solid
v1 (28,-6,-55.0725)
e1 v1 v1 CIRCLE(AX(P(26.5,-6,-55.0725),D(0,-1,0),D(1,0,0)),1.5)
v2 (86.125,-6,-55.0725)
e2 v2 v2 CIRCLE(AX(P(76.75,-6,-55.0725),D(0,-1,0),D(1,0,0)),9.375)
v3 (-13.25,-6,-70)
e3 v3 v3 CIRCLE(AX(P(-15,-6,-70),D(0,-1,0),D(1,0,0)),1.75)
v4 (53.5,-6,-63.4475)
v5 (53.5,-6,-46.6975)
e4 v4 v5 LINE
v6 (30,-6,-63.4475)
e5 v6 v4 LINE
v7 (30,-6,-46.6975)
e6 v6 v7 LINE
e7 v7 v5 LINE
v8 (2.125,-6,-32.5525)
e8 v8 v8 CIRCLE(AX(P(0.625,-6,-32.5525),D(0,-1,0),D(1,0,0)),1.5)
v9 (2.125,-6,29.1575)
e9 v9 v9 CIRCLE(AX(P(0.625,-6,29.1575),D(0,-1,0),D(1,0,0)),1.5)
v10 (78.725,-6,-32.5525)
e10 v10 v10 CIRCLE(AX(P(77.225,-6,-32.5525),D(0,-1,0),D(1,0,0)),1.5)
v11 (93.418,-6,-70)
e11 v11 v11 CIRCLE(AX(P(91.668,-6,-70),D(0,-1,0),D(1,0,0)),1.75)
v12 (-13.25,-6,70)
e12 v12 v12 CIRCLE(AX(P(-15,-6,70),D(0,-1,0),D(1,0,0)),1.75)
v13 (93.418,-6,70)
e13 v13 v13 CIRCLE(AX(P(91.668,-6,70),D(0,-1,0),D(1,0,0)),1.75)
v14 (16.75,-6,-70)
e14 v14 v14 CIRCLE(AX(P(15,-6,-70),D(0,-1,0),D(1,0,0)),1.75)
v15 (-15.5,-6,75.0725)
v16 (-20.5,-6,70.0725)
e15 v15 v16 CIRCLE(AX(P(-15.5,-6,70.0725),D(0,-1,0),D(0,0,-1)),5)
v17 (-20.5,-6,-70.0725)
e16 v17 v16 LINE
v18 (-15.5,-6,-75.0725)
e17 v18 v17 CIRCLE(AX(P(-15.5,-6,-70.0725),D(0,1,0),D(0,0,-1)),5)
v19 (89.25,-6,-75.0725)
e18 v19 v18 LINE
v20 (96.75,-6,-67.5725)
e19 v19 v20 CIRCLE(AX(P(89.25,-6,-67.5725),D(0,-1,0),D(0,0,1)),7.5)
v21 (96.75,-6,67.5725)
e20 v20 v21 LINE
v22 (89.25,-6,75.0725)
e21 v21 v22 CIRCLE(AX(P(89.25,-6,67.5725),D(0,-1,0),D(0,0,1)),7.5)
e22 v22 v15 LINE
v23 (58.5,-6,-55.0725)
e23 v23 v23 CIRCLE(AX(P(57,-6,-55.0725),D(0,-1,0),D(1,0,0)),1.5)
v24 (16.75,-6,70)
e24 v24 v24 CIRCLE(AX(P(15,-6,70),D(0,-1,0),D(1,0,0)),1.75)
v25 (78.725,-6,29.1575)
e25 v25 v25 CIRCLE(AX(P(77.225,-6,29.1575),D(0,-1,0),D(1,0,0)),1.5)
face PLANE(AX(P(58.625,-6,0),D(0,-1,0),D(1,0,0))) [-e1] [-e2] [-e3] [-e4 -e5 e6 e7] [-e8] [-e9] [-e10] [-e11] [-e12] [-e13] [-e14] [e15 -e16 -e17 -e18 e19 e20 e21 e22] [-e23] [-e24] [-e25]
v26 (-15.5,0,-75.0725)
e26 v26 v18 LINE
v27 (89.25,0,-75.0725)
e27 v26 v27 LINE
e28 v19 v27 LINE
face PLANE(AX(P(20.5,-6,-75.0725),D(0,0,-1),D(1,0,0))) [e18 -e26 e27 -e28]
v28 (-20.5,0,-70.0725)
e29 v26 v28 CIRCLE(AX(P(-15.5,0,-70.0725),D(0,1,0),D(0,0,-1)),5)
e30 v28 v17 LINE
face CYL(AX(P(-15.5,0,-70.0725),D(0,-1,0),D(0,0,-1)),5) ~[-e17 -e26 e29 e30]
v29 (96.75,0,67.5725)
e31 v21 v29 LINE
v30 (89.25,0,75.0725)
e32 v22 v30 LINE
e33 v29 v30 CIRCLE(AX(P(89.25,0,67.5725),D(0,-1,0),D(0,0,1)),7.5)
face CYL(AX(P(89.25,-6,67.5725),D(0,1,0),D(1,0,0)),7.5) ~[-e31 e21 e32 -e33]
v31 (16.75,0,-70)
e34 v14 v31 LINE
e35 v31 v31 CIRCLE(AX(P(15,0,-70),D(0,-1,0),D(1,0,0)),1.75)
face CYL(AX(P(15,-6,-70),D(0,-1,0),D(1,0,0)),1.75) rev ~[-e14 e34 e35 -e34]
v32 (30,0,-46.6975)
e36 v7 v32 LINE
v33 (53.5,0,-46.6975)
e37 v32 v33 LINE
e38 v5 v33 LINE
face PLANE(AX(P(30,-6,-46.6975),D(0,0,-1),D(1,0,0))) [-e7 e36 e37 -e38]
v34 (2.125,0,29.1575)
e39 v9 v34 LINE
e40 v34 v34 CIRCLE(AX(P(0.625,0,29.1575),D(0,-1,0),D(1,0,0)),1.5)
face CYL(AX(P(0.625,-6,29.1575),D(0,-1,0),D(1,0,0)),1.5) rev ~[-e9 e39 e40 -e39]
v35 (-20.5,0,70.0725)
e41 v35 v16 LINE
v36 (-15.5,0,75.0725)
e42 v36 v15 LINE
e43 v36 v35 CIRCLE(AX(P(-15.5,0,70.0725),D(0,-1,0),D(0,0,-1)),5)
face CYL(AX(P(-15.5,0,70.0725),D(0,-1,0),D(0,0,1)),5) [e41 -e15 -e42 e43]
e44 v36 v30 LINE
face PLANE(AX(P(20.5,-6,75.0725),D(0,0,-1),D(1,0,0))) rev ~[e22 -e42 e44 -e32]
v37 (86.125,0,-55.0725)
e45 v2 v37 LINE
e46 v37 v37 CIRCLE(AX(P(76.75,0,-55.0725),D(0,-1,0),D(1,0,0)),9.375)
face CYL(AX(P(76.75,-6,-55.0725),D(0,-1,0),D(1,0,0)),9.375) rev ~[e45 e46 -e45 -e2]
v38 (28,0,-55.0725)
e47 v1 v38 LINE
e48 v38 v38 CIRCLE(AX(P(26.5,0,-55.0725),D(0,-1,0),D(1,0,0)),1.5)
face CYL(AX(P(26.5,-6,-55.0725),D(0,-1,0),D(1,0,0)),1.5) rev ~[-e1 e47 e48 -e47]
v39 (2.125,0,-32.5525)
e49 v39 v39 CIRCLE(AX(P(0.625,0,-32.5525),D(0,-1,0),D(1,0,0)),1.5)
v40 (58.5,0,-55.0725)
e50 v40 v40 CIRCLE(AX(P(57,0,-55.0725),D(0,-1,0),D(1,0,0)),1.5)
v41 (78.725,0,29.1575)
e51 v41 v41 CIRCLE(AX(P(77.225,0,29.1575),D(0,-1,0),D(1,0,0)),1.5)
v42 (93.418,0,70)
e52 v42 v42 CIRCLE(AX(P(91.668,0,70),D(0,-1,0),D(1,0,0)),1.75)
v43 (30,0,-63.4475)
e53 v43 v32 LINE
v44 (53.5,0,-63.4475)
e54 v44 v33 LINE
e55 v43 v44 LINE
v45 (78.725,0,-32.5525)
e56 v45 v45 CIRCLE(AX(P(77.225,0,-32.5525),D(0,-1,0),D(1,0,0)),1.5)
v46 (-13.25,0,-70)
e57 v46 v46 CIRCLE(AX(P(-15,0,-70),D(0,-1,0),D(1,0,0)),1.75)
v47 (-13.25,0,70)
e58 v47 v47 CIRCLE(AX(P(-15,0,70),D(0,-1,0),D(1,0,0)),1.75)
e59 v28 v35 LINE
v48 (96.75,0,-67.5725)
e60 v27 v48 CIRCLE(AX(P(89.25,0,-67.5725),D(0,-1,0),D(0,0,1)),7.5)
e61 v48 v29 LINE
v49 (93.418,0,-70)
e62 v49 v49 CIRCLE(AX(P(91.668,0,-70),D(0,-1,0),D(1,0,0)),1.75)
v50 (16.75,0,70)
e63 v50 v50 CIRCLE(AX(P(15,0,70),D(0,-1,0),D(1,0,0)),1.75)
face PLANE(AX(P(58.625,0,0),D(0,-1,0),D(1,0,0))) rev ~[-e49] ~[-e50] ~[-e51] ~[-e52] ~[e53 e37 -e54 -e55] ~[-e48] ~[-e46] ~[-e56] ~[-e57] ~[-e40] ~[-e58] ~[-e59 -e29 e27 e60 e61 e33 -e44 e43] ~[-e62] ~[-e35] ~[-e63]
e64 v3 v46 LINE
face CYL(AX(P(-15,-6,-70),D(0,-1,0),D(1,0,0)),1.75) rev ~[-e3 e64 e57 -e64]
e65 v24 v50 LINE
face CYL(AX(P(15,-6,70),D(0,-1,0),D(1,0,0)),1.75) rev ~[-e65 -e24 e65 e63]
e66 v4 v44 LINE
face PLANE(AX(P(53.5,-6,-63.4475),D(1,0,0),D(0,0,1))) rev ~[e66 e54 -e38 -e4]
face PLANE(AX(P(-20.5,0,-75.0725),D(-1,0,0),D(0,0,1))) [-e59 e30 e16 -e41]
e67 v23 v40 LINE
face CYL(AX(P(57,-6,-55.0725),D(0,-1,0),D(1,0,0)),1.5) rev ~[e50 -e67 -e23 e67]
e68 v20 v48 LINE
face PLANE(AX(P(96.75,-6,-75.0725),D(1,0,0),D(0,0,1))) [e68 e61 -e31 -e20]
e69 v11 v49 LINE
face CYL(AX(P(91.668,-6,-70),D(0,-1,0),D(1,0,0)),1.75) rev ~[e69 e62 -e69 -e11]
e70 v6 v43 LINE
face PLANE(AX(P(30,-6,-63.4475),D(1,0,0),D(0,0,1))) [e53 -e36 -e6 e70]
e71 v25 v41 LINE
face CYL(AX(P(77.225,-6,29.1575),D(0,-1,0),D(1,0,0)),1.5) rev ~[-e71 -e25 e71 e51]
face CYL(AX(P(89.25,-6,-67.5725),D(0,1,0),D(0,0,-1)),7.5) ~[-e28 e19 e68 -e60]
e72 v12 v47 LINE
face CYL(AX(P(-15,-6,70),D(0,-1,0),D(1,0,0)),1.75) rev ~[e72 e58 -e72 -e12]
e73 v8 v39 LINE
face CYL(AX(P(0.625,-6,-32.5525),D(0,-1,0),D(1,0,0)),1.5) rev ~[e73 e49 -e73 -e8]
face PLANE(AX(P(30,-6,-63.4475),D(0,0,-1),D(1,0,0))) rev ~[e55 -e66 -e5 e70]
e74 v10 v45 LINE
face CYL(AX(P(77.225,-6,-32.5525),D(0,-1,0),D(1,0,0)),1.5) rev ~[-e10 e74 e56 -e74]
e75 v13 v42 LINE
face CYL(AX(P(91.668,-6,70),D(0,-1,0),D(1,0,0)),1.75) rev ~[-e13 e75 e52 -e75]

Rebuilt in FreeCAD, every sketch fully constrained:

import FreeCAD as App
import Part
import Sketcher

V = App.Vector


def edges_at(feature, points):
    """Names of the edges that pass closest to the given points."""
    edges = feature.Shape.Edges
    near = lambda p: min(range(len(edges)), key=lambda i: edges[i].distToShape(Part.Vertex(*p))[0])
    return sorted({f"Edge{near(p) + 1}" for p in points})


def add_polygon(sketch, points):
    """Adds a closed chain of lines whose ends are joined by coincident constraints."""
    first, n = sketch.GeometryCount, len(points)
    for a, b in zip(points, points[1:] + points[:1]):
        sketch.addGeometry(Part.LineSegment(App.Vector(*a, 0), App.Vector(*b, 0)), False)
    for i in range(n):
        sketch.addConstraint(Sketcher.Constraint("Coincident", first + i, 2, first + (i + 1) % n, 1))

doc = App.newDocument("Part")
body = doc.addObject("PartDesign::Body", "Body")

# Sketch on XZ plane
sketch1 = doc.addObject("Sketcher::SketchObject", "Sketch")
body.addObject(sketch1)
sketch1.AttachmentSupport = (doc.XZ_Plane, [""])
sketch1.MapMode = "FlatFace"
add_polygon(sketch1, [(-20.5, 75.0725), (-20.5, -75.0725), (20.5, -75.0725), (20.5, 75.0725)])  # lines 0-3
sketch1.addConstraint(Sketcher.Constraint("Vertical", 0))
sketch1.addConstraint(Sketcher.Constraint("Horizontal", 1))
sketch1.addConstraint(Sketcher.Constraint("Vertical", 2))
sketch1.addConstraint(Sketcher.Constraint("Horizontal", 3))
sketch1.addConstraint(Sketcher.Constraint("Symmetric", 0, 2, 2, 2, -1, 1))
sketch1.addConstraint(Sketcher.Constraint("DistanceX", 1, 1, 1, 2, 41.0))
sketch1.addConstraint(Sketcher.Constraint("DistanceY", 0, 2, 0, 1, 150.145))
pad1 = doc.addObject("PartDesign::Pad", "Pad")
body.addObject(pad1)
pad1.Profile = sketch1
pad1.Length = 6

# Sketch on XZ plane
sketch2 = doc.addObject("Sketcher::SketchObject", "Sketch001")
body.addObject(sketch2)
sketch2.AttachmentSupport = (doc.XZ_Plane, [""])
sketch2.MapMode = "FlatFace"
sketch2.AttachmentOffset = App.Placement(V(0, 0, 6), App.Rotation())
sketch2.addGeometry(Part.Circle(V(-15, 70, 0), V(0, 0, 1), 1.75), False)
sketch2.addGeometry(Part.Circle(V(15, 70, 0), V(0, 0, 1), 1.75), False)
sketch2.addGeometry(Part.Circle(V(-15, -70, 0), V(0, 0, 1), 1.75), False)
sketch2.addGeometry(Part.Circle(V(15, -70, 0), V(0, 0, 1), 1.75), False)
sketch2.addConstraint(Sketcher.Constraint("Equal", 0, 1))
sketch2.addConstraint(Sketcher.Constraint("Equal", 1, 2))
sketch2.addConstraint(Sketcher.Constraint("Equal", 2, 3))
sketch2.addConstraint(Sketcher.Constraint("Symmetric", 1, 3, 2, 3, -1, 1))
sketch2.addConstraint(Sketcher.Constraint("Symmetric", 0, 3, 3, 3, -1, 1))
sketch2.addConstraint(Sketcher.Constraint("Symmetric", 0, 3, 1, 3, -2))
sketch2.addConstraint(Sketcher.Constraint("Diameter", 0, 3.5))
sketch2.addConstraint(Sketcher.Constraint("DistanceX", 0, 3, -1, 1, 15.0))
sketch2.addConstraint(Sketcher.Constraint("DistanceY", -1, 1, 0, 3, 70.0))
pocket1 = doc.addObject("PartDesign::Pocket", "Pocket")
body.addObject(pocket1)
pocket1.Profile = sketch2
pocket1.Type = "ThroughAll"

# Sketch on XZ plane
sketch3 = doc.addObject("Sketcher::SketchObject", "Sketch002")
body.addObject(sketch3)
sketch3.AttachmentSupport = (doc.XZ_Plane, [""])
sketch3.MapMode = "FlatFace"
sketch3.AttachmentOffset = App.Placement(V(0, 0, 6), App.Rotation())
add_polygon(sketch3, [(20.5, 75.0725), (20.5, -75.0725), (96.75, -75.0725), (96.75, 75.0725)])  # lines 0-3
sketch3.addConstraint(Sketcher.Constraint("Vertical", 0))
sketch3.addConstraint(Sketcher.Constraint("Horizontal", 1))
sketch3.addConstraint(Sketcher.Constraint("Vertical", 2))
sketch3.addConstraint(Sketcher.Constraint("Horizontal", 3))
sketch3.addConstraint(Sketcher.Constraint("DistanceX", 1, 1, 1, 2, 76.25))
sketch3.addConstraint(Sketcher.Constraint("DistanceX", -1, 1, 0, 2, 20.5))
sketch3.addConstraint(Sketcher.Constraint("DistanceY", 0, 2, 0, 1, 150.145))
sketch3.addConstraint(Sketcher.Constraint("DistanceY", 0, 2, -1, 1, 75.0725))
pad2 = doc.addObject("PartDesign::Pad", "Pad001")
body.addObject(pad2)
pad2.Profile = sketch3
pad2.Length = 6
pad2.Reversed = True
doc.recompute()

fillet = doc.addObject("PartDesign::Fillet", "Fillet")
body.addObject(fillet)
fillet.Base = (pad2, edges_at(pad2, [(-20.5, -3, 75.073), (-20.5, -3, -75.073)]))
fillet.Radius = 5
doc.recompute()

fillet2 = doc.addObject("PartDesign::Fillet", "Fillet001")
body.addObject(fillet2)
fillet2.Base = (fillet, edges_at(fillet, [(96.75, -3, 75.073), (96.75, -3, -75.073)]))
fillet2.Radius = 7.5

# Sketch on XZ plane
sketch4 = doc.addObject("Sketcher::SketchObject", "Sketch003")
body.addObject(sketch4)
sketch4.AttachmentSupport = (doc.XZ_Plane, [""])
sketch4.MapMode = "FlatFace"
sketch4.AttachmentOffset = App.Placement(V(0, 0, 6), App.Rotation())
sketch4.addGeometry(Part.Circle(V(91.668, 70, 0), V(0, 0, 1), 1.75), False)
sketch4.addGeometry(Part.Circle(V(91.668, -70, 0), V(0, 0, 1), 1.75), False)
sketch4.addConstraint(Sketcher.Constraint("Equal", 0, 1))
sketch4.addConstraint(Sketcher.Constraint("Symmetric", 0, 3, 1, 3, -1))
sketch4.addConstraint(Sketcher.Constraint("Diameter", 0, 3.5))
sketch4.addConstraint(Sketcher.Constraint("DistanceY", -1, 1, 0, 3, 70.0))
sketch4.addConstraint(Sketcher.Constraint("DistanceX", -1, 1, 0, 3, 91.668))
pocket2 = doc.addObject("PartDesign::Pocket", "Pocket001")
body.addObject(pocket2)
pocket2.Profile = sketch4
pocket2.Type = "ThroughAll"

# Sketch on XZ plane
sketch5 = doc.addObject("Sketcher::SketchObject", "Sketch004")
body.addObject(sketch5)
sketch5.AttachmentSupport = (doc.XZ_Plane, [""])
sketch5.MapMode = "FlatFace"
sketch5.AttachmentOffset = App.Placement(V(0, 0, 6), App.Rotation())
sketch5.addGeometry(Part.Circle(V(76.75, -55.0725, 0), V(0, 0, 1), 9.375), False)  # 0
add_polygon(sketch5, [(30, -46.6975), (30, -63.4475), (53.5, -63.4475), (53.5, -46.6975)])  # lines 1-4
sketch5.addGeometry(Part.Circle(V(57, -55.0725, 0), V(0, 0, 1), 1.5), False)  # 5
sketch5.addGeometry(Part.Circle(V(26.5, -55.0725, 0), V(0, 0, 1), 1.5), False)  # 6
sketch5.addConstraint(Sketcher.Constraint("Vertical", 1))
sketch5.addConstraint(Sketcher.Constraint("Horizontal", 2))
sketch5.addConstraint(Sketcher.Constraint("Vertical", 3))
sketch5.addConstraint(Sketcher.Constraint("Horizontal", 4))
sketch5.addConstraint(Sketcher.Constraint("Equal", 5, 6))
sketch5.addConstraint(Sketcher.Constraint("Horizontal", 0, 3, 5, 3))
sketch5.addConstraint(Sketcher.Constraint("Horizontal", 5, 3, 6, 3))
sketch5.addConstraint(Sketcher.Constraint("Diameter", 5, 3.0))
sketch5.addConstraint(Sketcher.Constraint("Diameter", 0, 18.75))
sketch5.addConstraint(Sketcher.Constraint("DistanceX", 2, 1, 2, 2, 23.5))
sketch5.addConstraint(Sketcher.Constraint("DistanceX", -1, 1, 5, 3, 57.0))
sketch5.addConstraint(Sketcher.Constraint("DistanceX", -1, 1, 1, 2, 30.0))
sketch5.addConstraint(Sketcher.Constraint("DistanceX", 6, 3, 2, 2, 27.0))
sketch5.addConstraint(Sketcher.Constraint("DistanceY", 1, 2, 1, 1, 16.75))
sketch5.addConstraint(Sketcher.Constraint("DistanceX", -1, 1, 0, 3, 76.75))
sketch5.addConstraint(Sketcher.Constraint("DistanceY", 1, 2, 6, 3, 8.375))
sketch5.addConstraint(Sketcher.Constraint("DistanceY", 0, 3, -1, 1, 55.0725))
pocket3 = doc.addObject("PartDesign::Pocket", "Pocket002")
body.addObject(pocket3)
pocket3.Profile = sketch5
pocket3.Type = "ThroughAll"

# Sketch on XZ plane
sketch6 = doc.addObject("Sketcher::SketchObject", "Sketch005")
body.addObject(sketch6)
sketch6.AttachmentSupport = (doc.XZ_Plane, [""])
sketch6.MapMode = "FlatFace"
sketch6.AttachmentOffset = App.Placement(V(0, 0, 6), App.Rotation())
sketch6.addGeometry(Part.Circle(V(0.625, -32.5525, 0), V(0, 0, 1), 1.5), False)
sketch6.addGeometry(Part.Circle(V(77.225, -32.5525, 0), V(0, 0, 1), 1.5), False)
sketch6.addGeometry(Part.Circle(V(0.625, 29.1575, 0), V(0, 0, 1), 1.5), False)
sketch6.addGeometry(Part.Circle(V(77.225, 29.1575, 0), V(0, 0, 1), 1.5), False)
sketch6.addConstraint(Sketcher.Constraint("Equal", 0, 1))
sketch6.addConstraint(Sketcher.Constraint("Equal", 1, 2))
sketch6.addConstraint(Sketcher.Constraint("Equal", 2, 3))
sketch6.addConstraint(Sketcher.Constraint("Horizontal", 0, 3, 1, 3))
sketch6.addConstraint(Sketcher.Constraint("Horizontal", 2, 3, 3, 3))
sketch6.addConstraint(Sketcher.Constraint("Vertical", 0, 3, 2, 3))
sketch6.addConstraint(Sketcher.Constraint("Vertical", 1, 3, 3, 3))
sketch6.addConstraint(Sketcher.Constraint("Diameter", 0, 3.0))
sketch6.addConstraint(Sketcher.Constraint("DistanceX", 0, 3, 1, 3, 76.6))
sketch6.addConstraint(Sketcher.Constraint("DistanceY", 0, 3, 2, 3, 61.71))
sketch6.addConstraint(Sketcher.Constraint("DistanceX", -1, 1, 0, 3, 0.625))
sketch6.addConstraint(Sketcher.Constraint("DistanceY", 0, 3, -1, 1, 32.5525))
pocket4 = doc.addObject("PartDesign::Pocket", "Pocket003")
body.addObject(pocket4)
pocket4.Profile = sketch6
pocket4.Type = "ThroughAll"

doc.recompute()
